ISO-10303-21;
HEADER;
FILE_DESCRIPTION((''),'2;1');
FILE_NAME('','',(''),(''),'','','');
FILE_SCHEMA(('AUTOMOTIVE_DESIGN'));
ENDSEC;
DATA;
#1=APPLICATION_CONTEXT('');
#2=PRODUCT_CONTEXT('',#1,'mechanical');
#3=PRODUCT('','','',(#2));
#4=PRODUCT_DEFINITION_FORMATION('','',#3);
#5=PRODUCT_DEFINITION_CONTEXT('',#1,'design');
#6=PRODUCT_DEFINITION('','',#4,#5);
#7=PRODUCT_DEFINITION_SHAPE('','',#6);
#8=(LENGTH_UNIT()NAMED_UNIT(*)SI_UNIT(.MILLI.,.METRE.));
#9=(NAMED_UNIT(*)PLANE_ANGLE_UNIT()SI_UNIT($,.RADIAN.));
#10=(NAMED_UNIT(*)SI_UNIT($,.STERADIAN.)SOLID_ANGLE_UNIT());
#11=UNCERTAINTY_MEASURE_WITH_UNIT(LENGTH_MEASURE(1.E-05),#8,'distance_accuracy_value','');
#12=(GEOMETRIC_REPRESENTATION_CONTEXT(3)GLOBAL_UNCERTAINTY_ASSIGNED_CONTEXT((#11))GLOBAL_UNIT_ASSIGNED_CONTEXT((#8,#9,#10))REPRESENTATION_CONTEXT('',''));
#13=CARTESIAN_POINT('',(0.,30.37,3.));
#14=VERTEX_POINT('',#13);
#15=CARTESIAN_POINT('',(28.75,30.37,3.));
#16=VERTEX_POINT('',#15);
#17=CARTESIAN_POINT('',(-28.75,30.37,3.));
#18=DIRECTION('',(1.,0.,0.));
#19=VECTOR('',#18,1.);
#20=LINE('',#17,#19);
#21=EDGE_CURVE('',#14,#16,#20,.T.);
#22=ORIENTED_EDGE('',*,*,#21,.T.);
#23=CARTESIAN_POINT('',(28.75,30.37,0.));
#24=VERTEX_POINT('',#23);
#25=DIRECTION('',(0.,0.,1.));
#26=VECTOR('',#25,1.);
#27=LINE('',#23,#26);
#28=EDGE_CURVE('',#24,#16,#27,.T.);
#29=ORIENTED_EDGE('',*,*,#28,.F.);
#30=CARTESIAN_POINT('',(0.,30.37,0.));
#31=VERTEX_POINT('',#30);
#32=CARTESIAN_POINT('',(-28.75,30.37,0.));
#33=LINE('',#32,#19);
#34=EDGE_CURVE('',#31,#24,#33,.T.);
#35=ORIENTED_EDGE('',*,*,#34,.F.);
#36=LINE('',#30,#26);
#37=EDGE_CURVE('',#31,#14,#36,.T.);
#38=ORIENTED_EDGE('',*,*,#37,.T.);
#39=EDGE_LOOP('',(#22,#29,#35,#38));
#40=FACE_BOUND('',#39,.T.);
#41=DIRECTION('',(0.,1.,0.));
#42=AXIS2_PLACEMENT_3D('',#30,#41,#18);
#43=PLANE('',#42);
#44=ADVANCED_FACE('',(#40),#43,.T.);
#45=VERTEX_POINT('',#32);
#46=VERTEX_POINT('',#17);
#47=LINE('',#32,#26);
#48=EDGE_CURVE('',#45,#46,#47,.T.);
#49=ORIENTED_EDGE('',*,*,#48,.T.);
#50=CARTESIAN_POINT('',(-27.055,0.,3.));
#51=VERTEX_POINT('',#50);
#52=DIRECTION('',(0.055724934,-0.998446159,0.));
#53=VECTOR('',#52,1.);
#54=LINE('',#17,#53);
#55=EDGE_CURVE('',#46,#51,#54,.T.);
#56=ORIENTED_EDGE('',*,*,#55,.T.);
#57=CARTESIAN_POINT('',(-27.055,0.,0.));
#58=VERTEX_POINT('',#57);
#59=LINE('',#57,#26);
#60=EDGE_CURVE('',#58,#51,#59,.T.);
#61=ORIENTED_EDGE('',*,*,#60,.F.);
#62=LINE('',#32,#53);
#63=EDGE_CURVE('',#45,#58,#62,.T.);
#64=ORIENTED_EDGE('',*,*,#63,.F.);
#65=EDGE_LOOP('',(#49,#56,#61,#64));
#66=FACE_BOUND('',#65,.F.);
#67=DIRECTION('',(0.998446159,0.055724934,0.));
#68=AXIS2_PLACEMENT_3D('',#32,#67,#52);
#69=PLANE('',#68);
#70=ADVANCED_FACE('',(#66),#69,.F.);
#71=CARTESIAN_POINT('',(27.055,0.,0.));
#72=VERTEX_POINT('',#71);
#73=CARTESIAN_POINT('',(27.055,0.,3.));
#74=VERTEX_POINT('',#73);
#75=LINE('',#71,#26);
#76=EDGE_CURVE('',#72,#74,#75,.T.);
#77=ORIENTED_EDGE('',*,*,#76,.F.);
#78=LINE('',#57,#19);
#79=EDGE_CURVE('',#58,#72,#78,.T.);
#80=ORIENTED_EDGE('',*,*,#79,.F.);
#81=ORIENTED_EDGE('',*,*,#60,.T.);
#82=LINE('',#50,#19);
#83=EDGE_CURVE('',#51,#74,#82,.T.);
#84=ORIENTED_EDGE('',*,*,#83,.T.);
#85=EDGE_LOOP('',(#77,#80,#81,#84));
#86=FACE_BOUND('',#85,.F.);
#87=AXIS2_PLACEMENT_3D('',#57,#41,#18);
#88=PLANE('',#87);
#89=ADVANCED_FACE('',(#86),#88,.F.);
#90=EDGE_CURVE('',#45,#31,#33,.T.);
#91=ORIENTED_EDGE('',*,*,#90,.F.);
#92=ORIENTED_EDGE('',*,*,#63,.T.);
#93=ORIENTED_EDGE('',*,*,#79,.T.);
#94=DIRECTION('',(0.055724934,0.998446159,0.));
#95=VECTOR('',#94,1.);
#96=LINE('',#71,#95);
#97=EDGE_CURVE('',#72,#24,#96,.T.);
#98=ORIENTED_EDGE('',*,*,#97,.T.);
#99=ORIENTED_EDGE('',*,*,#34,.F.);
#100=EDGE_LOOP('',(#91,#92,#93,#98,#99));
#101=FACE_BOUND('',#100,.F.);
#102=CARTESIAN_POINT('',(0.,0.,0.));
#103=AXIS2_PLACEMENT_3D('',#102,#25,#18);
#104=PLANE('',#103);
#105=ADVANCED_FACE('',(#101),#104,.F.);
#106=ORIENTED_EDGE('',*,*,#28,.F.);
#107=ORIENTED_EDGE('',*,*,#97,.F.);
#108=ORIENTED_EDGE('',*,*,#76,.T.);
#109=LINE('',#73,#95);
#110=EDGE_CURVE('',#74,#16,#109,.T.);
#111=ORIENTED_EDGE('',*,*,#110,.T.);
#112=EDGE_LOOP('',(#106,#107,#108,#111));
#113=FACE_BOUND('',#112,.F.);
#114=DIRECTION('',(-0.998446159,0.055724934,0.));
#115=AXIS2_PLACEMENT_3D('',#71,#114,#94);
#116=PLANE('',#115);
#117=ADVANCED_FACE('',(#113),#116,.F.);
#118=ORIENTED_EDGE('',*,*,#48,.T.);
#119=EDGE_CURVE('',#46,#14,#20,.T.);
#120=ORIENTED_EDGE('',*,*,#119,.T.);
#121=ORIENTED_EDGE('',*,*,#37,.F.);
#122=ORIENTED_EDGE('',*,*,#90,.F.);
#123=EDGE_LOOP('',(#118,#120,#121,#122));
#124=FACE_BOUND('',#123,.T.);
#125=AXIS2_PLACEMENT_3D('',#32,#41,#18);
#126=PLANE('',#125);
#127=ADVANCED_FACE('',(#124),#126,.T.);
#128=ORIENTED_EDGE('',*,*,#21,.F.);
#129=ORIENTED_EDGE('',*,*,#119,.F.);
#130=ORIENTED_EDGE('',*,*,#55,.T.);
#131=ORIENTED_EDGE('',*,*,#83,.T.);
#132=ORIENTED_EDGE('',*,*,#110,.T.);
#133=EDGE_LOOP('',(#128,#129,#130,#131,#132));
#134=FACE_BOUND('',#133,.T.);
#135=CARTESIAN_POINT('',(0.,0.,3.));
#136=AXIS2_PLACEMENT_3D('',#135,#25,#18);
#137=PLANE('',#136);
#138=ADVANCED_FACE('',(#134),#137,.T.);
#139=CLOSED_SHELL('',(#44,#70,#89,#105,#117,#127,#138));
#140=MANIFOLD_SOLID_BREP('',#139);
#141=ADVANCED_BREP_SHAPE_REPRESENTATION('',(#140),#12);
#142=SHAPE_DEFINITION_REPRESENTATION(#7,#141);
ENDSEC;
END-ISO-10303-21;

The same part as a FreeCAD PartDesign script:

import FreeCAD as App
import Part
import Sketcher
Q = App.Units.Quantity

doc = App.newDocument("Part")
params = doc.addObject("Spreadsheet::Sheet", "Params")
for row, (alias, value) in enumerate([
    ("sketch1_width", "57.5 mm"),
    ("sketch1_width2", "54.11 mm"),
    ("pad1_length", "3 mm"),
], start=1):
    params.set(f"A{row}", alias)
    params.set(f"B{row}", "=" + value)
    params.setAlias(f"B{row}", alias)

body = doc.addObject("PartDesign::Body", "Body")

# Sketch on XY plane
sketch1 = body.newObject("Sketcher::SketchObject", "Sketch")
sketch1.AttachmentSupport = (doc.getObject("XY_Plane"), [""])
sketch1.MapMode = "FlatFace"
sketch1.addGeometry([
    Part.LineSegment(App.Vector(-28.75, 30.37, 0), App.Vector(-27.055, 0, 0)),
    Part.LineSegment(App.Vector(-27.055, 0, 0), App.Vector(27.055, 0, 0)),
    Part.LineSegment(App.Vector(27.055, 0, 0), App.Vector(28.75, 30.37, 0)),
    Part.LineSegment(App.Vector(28.75, 30.37, 0), App.Vector(-28.75, 30.37, 0)),
], False)
sketch1.addConstraint([
    Sketcher.Constraint("Coincident", 0, 2, 1, 1),
    Sketcher.Constraint("Coincident", 1, 2, 2, 1),
    Sketcher.Constraint("Coincident", 2, 2, 3, 1),
    Sketcher.Constraint("Coincident", 3, 2, 0, 1),
    Sketcher.Constraint("Horizontal", 1),
    Sketcher.Constraint("Horizontal", 3),
    Sketcher.Constraint("Symmetric", 0, 2, 1, 2, -1, 1),
    Sketcher.Constraint("Equal", 0, 2),
    Sketcher.Constraint("DistanceX", 3, 2, 3, 1, Q("57.5 mm")),
    Sketcher.Constraint("DistanceX", 1, 1, 1, 2, Q("54.11 mm")),
    Sketcher.Constraint("DistanceY", -1, 1, 2, 2, Q("30.37 mm")),
])
sketch1.setExpression("Constraints[8]", "Params.sketch1_width")
sketch1.setExpression("Constraints[9]", "Params.sketch1_width2")
pad1 = body.newObject("PartDesign::Pad", "Pad")
pad1.Profile = sketch1
pad1.setExpression("Length", "Params.pad1_length")

doc.recompute()
